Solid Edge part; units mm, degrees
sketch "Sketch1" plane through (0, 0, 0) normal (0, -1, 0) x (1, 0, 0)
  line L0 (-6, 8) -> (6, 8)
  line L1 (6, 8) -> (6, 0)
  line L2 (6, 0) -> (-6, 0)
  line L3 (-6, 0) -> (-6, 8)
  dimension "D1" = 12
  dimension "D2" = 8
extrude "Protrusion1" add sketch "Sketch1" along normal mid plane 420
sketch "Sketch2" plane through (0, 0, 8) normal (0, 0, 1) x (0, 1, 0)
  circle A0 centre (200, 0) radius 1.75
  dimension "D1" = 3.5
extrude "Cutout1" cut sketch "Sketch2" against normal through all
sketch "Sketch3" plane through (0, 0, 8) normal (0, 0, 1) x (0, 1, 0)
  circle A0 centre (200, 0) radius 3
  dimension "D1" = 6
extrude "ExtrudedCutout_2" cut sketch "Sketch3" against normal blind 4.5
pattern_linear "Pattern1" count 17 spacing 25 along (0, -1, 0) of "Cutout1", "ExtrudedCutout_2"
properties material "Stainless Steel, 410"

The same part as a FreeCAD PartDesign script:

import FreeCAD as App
import Part
import Sketcher

doc = App.newDocument("Part")
body = doc.addObject("PartDesign::Body", "Body")

# Sketch on XZ plane
sketch1 = body.newObject("Sketcher::SketchObject", "Sketch")
sketch1.AttachmentSupport = (doc.getObject("XZ_Plane"), [""])
sketch1.MapMode = "FlatFace"
sketch1.addGeometry(Part.LineSegment(App.Vector(6, 8, 0), App.Vector(-6, 8, 0)), False)
sketch1.addGeometry(Part.LineSegment(App.Vector(-6, 8, 0), App.Vector(-6, 0, 0)), False)
sketch1.addGeometry(Part.LineSegment(App.Vector(-6, 0, 0), App.Vector(6, 0, 0)), False)
sketch1.addGeometry(Part.LineSegment(App.Vector(6, 0, 0), App.Vector(6, 8, 0)), False)
sketch1.addConstraint(Sketcher.Constraint("Coincident", 0, 2, 1, 1))
sketch1.addConstraint(Sketcher.Constraint("Coincident", 1, 2, 2, 1))
sketch1.addConstraint(Sketcher.Constraint("Coincident", 2, 2, 3, 1))
sketch1.addConstraint(Sketcher.Constraint("Coincident", 3, 2, 0, 1))
sketch1.addConstraint(Sketcher.Constraint("Horizontal", 0))
sketch1.addConstraint(Sketcher.Constraint("Vertical", 1))
sketch1.addConstraint(Sketcher.Constraint("Horizontal", 2))
sketch1.addConstraint(Sketcher.Constraint("Vertical", 3))
sketch1.addConstraint(Sketcher.Constraint("Symmetric", 1, 2, 2, 2, -1, 1))
sketch1.addConstraint(Sketcher.Constraint("DistanceX", 0, 2, -1, 1, 6.0))
sketch1.addConstraint(Sketcher.Constraint("DistanceY", 1, 2, 1, 1, 8.0))
pad1 = body.newObject("PartDesign::Pad", "Pad")
pad1.Profile = sketch1
pad1.Length = 420
pad1.Midplane = True

# Sketch on XY plane
sketch2 = body.newObject("Sketcher::SketchObject", "Sketch001")
sketch2.AttachmentSupport = (doc.getObject("XY_Plane"), [""])
sketch2.MapMode = "FlatFace"
sketch2.AttachmentOffset = App.Placement(App.Vector(0, 0, 8), App.Rotation())
sketch2.addGeometry(Part.Circle(App.Vector(0, 200, 0), App.Vector(0, 0, 1), 1.8), False)
sketch2.addConstraint(Sketcher.Constraint("PointOnObject", 0, 3, -2))
sketch2.addConstraint(Sketcher.Constraint("Diameter", 0, 3.5))
sketch2.addConstraint(Sketcher.Constraint("DistanceY", -1, 1, 0, 3, 200.0))
pocket1 = body.newObject("PartDesign::Pocket", "Pocket")
pocket1.Profile = sketch2
pocket1.Type = "ThroughAll"

# Sketch on XY plane
sketch3 = body.newObject("Sketcher::SketchObject", "Sketch002")
sketch3.AttachmentSupport = (doc.getObject("XY_Plane"), [""])
sketch3.MapMode = "FlatFace"
sketch3.AttachmentOffset = App.Placement(App.Vector(0, 0, 8), App.Rotation())
sketch3.addGeometry(Part.Circle(App.Vector(0, 200, 0), App.Vector(0, 0, 1), 3), False)
sketch3.addConstraint(Sketcher.Constraint("PointOnObject", 0, 3, -2))
sketch3.addConstraint(Sketcher.Constraint("Diameter", 0, 6.0))
sketch3.addConstraint(Sketcher.Constraint("DistanceY", -1, 1, 0, 3, 200.0))
pocket2 = body.newObject("PartDesign::Pocket", "Pocket001")
pocket2.Profile = sketch3
pocket2.Length = 4.5
doc.recompute()

linearpattern = body.newObject("PartDesign::LinearPattern", "LinearPattern")
linearpattern.Originals = [pocket1, pocket2]
linearpattern.Direction = (doc.getObject("Y_Axis"), [""])
linearpattern.Mode = "offset"
linearpattern.Offset = 25
linearpattern.Occurrences = 17
linearpattern.Reversed = True
body.Tip = linearpattern

doc.recompute()
